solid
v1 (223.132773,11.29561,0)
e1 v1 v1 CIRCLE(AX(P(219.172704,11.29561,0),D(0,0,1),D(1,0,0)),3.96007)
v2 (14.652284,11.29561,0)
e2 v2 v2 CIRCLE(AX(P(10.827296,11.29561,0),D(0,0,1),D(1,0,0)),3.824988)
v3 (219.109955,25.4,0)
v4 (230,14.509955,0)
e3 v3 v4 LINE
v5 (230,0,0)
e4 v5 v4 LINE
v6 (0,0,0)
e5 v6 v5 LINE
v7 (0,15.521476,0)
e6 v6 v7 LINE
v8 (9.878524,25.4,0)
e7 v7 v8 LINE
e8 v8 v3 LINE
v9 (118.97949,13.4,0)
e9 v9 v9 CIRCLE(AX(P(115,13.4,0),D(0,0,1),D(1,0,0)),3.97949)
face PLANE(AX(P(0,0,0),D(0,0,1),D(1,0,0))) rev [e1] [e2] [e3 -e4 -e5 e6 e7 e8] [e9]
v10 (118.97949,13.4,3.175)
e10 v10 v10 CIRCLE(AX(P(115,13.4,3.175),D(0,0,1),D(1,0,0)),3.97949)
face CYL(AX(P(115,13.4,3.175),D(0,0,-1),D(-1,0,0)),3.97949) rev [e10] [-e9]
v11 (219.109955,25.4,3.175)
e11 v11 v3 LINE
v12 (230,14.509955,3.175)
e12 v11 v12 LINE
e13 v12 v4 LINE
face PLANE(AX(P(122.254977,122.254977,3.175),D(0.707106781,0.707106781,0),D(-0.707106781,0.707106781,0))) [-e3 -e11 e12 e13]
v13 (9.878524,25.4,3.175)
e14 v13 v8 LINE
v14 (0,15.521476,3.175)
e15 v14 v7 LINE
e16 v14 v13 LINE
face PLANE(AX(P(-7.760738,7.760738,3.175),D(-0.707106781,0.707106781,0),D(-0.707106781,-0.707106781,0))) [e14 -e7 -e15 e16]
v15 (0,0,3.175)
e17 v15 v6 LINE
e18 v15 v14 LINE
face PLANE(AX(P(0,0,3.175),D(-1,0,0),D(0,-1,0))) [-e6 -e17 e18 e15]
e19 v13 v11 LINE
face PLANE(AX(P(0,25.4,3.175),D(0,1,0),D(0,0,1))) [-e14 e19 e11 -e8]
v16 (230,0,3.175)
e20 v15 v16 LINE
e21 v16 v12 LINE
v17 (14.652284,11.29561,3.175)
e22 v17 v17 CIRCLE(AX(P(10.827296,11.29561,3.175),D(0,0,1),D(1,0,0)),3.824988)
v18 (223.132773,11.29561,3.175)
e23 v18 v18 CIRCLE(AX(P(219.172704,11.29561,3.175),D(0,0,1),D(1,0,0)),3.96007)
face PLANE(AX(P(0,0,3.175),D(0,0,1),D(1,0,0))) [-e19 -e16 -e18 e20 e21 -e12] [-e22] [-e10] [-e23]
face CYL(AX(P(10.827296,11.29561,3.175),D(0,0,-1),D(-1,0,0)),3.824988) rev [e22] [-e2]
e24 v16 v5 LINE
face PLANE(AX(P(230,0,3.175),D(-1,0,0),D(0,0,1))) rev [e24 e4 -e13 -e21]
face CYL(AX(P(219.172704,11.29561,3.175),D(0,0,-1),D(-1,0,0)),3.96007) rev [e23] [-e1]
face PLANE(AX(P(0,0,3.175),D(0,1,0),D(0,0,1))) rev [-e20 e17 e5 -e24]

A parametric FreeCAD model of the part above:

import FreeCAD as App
import Part
import Sketcher
from FreeCAD import Vector
Q = App.Units.Quantity

doc = App.newDocument("Part")
body = doc.addObject("PartDesign::Body", "Body")

# Sketch on XY plane
sketch1 = doc.addObject("Sketcher::SketchObject", "Sketch")
body.addObject(sketch1)
sketch1.AttachmentSupport = (doc.XY_Plane, [""])
sketch1.MapMode = "FlatFace"
sketch1.addGeometry(Part.LineSegment(Vector(9.9, 25.4, 0), Vector(0, 15.5, 0)), False)
sketch1.addGeometry(Part.LineSegment(Vector(0, 15.5, 0), Vector(0, 0, 0)), False)
sketch1.addGeometry(Part.LineSegment(Vector(0, 0, 0), Vector(230, 0, 0)), False)
sketch1.addGeometry(Part.LineSegment(Vector(230, 0, 0), Vector(230, 14.5, 0)), False)
sketch1.addGeometry(Part.LineSegment(Vector(230, 14.5, 0), Vector(219.1, 25.4, 0)), False)
sketch1.addGeometry(Part.LineSegment(Vector(219.1, 25.4, 0), Vector(9.9, 25.4, 0)), False)
sketch1.addGeometry(Part.Circle(Vector(10.8, 11.3, 0), Vector(0, 0, 1), 3.8), False)
sketch1.addGeometry(Part.Circle(Vector(219.2, 11.3, 0), Vector(0, 0, 1), 4), False)
sketch1.addGeometry(Part.Circle(Vector(115, 13.4, 0), Vector(0, 0, 1), 4), False)
sketch1.addConstraint(Sketcher.Constraint("Coincident", 0, 2, 1, 1))
sketch1.addConstraint(Sketcher.Constraint("Coincident", 1, 2, 2, 1))
sketch1.addConstraint(Sketcher.Constraint("Coincident", 2, 2, 3, 1))
sketch1.addConstraint(Sketcher.Constraint("Coincident", 3, 2, 4, 1))
sketch1.addConstraint(Sketcher.Constraint("Coincident", 4, 2, 5, 1))
sketch1.addConstraint(Sketcher.Constraint("Coincident", 5, 2, 0, 1))
sketch1.addConstraint(Sketcher.Constraint("Vertical", 1))
sketch1.addConstraint(Sketcher.Constraint("Horizontal", 2))
sketch1.addConstraint(Sketcher.Constraint("Vertical", 3))
sketch1.addConstraint(Sketcher.Constraint("Horizontal", 5))
sketch1.addConstraint(Sketcher.Constraint("Coincident", 1, 2, -1, 1))
sketch1.addConstraint(Sketcher.Constraint("Perpendicular", 0, 4))
sketch1.addConstraint(Sketcher.Constraint("Horizontal", 6, 3, 7, 3))
sketch1.addConstraint(Sketcher.Constraint("DistanceX", 2, 1, 2, 2, Q("230 mm")))
sketch1.addConstraint(Sketcher.Constraint("Angle", 0, Q("-135 deg")))
sketch1.addConstraint(Sketcher.Constraint("DistanceX", -1, 1, 8, 3, Q("115 mm")))
sketch1.addConstraint(Sketcher.Constraint("DistanceY", 8, 3, 4, 2, Q("12 mm")))
sketch1.addConstraint(Sketcher.Constraint("DistanceY", -1, 1, 8, 3, Q("13.4 mm")))
sketch1.addConstraint(Sketcher.Constraint("Diameter", 7, Q("7.920139 mm")))
sketch1.addConstraint(Sketcher.Constraint("Diameter", 8, Q("7.95898 mm")))
sketch1.addConstraint(Sketcher.Constraint("Diameter", 6, Q("7.649975 mm")))
sketch1.addConstraint(Sketcher.Constraint("DistanceX", 5, 2, 5, 1, Q("209.23143 mm")))
sketch1.addConstraint(Sketcher.Constraint("Distance", 4, Q("15.40085 mm")))
sketch1.addConstraint(Sketcher.Constraint("DistanceY", -1, 1, 6, 3, Q("11.29561 mm")))
sketch1.addConstraint(Sketcher.Constraint("DistanceX", 4, 2, 7, 3, Q("0.062749 mm")))
sketch1.addConstraint(Sketcher.Constraint("DistanceX", 6, 3, 4, 2, Q("208.282658 mm")))
pad1 = doc.addObject("PartDesign::Pad", "Pad")
body.addObject(pad1)
pad1.Profile = sketch1
pad1.Length = 3.175

doc.recompute()
